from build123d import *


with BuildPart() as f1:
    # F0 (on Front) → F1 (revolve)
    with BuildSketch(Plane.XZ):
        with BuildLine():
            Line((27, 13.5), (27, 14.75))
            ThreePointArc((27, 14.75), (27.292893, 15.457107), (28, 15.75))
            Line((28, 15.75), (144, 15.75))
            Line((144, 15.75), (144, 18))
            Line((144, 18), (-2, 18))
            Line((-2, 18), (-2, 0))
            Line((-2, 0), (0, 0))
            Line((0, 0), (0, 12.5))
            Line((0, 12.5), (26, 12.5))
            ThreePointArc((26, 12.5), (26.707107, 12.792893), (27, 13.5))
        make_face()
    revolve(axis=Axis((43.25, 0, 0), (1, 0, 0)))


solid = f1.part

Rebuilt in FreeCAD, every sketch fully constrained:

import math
import FreeCAD as App
import Part
import Sketcher
Q = App.Units.Quantity

doc = App.newDocument("Part")
body = doc.addObject("PartDesign::Body", "Body")

# Sketch on XZ plane
sketch1 = doc.addObject("Sketcher::SketchObject", "Sketch")
body.addObject(sketch1)
sketch1.AttachmentSupport = (doc.XZ_Plane, [""])
sketch1.MapMode = "FlatFace"
sketch1.addGeometry(Part.LineSegment(App.Vector(27, 13.5, 0), App.Vector(27, 14.8, 0)), False)
sketch1.addGeometry(Part.ArcOfCircle(Part.Circle(App.Vector(28, 14.8, 0), App.Vector(0, 0, 1), 1), math.radians(90), math.radians(180)), False)
sketch1.addGeometry(Part.LineSegment(App.Vector(28, 15.8, 0), App.Vector(144, 15.8, 0)), False)
sketch1.addGeometry(Part.LineSegment(App.Vector(144, 15.8, 0), App.Vector(144, 18, 0)), False)
sketch1.addGeometry(Part.LineSegment(App.Vector(144, 18, 0), App.Vector(-2, 18, 0)), False)
sketch1.addGeometry(Part.LineSegment(App.Vector(-2, 18, 0), App.Vector(-2, 0, 0)), False)
sketch1.addGeometry(Part.LineSegment(App.Vector(-2, 0, 0), App.Vector(0, 0, 0)), False)
sketch1.addGeometry(Part.LineSegment(App.Vector(0, 0, 0), App.Vector(0, 12.5, 0)), False)
sketch1.addGeometry(Part.LineSegment(App.Vector(0, 12.5, 0), App.Vector(26, 12.5, 0)), False)
sketch1.addGeometry(Part.ArcOfCircle(Part.Circle(App.Vector(26, 13.5, 0), App.Vector(0, 0, 1), 1), math.radians(-90), math.radians(0)), False)
sketch1.addConstraint(Sketcher.Constraint("Tangent", 0, 2, 1, 2))
sketch1.addConstraint(Sketcher.Constraint("Tangent", 1, 1, 2, 1))
sketch1.addConstraint(Sketcher.Constraint("Coincident", 2, 2, 3, 1))
sketch1.addConstraint(Sketcher.Constraint("Coincident", 3, 2, 4, 1))
sketch1.addConstraint(Sketcher.Constraint("Coincident", 4, 2, 5, 1))
sketch1.addConstraint(Sketcher.Constraint("Coincident", 5, 2, 6, 1))
sketch1.addConstraint(Sketcher.Constraint("Coincident", 6, 2, 7, 1))
sketch1.addConstraint(Sketcher.Constraint("Coincident", 7, 2, 8, 1))
sketch1.addConstraint(Sketcher.Constraint("Tangent", 8, 2, 9, 1))
sketch1.addConstraint(Sketcher.Constraint("Tangent", 9, 2, 0, 1))
sketch1.addConstraint(Sketcher.Constraint("Vertical", 0))
sketch1.addConstraint(Sketcher.Constraint("Horizontal", 2))
sketch1.addConstraint(Sketcher.Constraint("Vertical", 3))
sketch1.addConstraint(Sketcher.Constraint("Horizontal", 4))
sketch1.addConstraint(Sketcher.Constraint("Vertical", 5))
sketch1.addConstraint(Sketcher.Constraint("Horizontal", 6))
sketch1.addConstraint(Sketcher.Constraint("Vertical", 7))
sketch1.addConstraint(Sketcher.Constraint("Horizontal", 8))
sketch1.addConstraint(Sketcher.Constraint("Coincident", 6, 2, -1, 1))
sketch1.addConstraint(Sketcher.Constraint("Equal", 1, 9))
sketch1.addConstraint(Sketcher.Constraint("Radius", 1, Q("0.999999 mm")))
sketch1.addConstraint(Sketcher.Constraint("DistanceX", 2, 1, 2, 2, Q("116 mm")))
sketch1.addConstraint(Sketcher.Constraint("DistanceX", 4, 2, 4, 1, Q("146 mm")))
sketch1.addConstraint(Sketcher.Constraint("DistanceX", 6, 1, 6, 2, Q("2 mm")))
sketch1.addConstraint(Sketcher.Constraint("DistanceY", 5, 2, 5, 1, Q("18 mm")))
sketch1.addConstraint(Sketcher.Constraint("DistanceY", 7, 1, 7, 2, Q("12.5 mm")))
sketch1.addConstraint(Sketcher.Constraint("DistanceY", 0, 1, 0, 2, Q("1.25 mm")))
revolution = doc.addObject("PartDesign::Revolution", "Revolution")
body.addObject(revolution)
revolution.Profile = sketch1
revolution.ReferenceAxis = (sketch1, ["H_Axis"])
revolution.Angle = 360

doc.recompute()
